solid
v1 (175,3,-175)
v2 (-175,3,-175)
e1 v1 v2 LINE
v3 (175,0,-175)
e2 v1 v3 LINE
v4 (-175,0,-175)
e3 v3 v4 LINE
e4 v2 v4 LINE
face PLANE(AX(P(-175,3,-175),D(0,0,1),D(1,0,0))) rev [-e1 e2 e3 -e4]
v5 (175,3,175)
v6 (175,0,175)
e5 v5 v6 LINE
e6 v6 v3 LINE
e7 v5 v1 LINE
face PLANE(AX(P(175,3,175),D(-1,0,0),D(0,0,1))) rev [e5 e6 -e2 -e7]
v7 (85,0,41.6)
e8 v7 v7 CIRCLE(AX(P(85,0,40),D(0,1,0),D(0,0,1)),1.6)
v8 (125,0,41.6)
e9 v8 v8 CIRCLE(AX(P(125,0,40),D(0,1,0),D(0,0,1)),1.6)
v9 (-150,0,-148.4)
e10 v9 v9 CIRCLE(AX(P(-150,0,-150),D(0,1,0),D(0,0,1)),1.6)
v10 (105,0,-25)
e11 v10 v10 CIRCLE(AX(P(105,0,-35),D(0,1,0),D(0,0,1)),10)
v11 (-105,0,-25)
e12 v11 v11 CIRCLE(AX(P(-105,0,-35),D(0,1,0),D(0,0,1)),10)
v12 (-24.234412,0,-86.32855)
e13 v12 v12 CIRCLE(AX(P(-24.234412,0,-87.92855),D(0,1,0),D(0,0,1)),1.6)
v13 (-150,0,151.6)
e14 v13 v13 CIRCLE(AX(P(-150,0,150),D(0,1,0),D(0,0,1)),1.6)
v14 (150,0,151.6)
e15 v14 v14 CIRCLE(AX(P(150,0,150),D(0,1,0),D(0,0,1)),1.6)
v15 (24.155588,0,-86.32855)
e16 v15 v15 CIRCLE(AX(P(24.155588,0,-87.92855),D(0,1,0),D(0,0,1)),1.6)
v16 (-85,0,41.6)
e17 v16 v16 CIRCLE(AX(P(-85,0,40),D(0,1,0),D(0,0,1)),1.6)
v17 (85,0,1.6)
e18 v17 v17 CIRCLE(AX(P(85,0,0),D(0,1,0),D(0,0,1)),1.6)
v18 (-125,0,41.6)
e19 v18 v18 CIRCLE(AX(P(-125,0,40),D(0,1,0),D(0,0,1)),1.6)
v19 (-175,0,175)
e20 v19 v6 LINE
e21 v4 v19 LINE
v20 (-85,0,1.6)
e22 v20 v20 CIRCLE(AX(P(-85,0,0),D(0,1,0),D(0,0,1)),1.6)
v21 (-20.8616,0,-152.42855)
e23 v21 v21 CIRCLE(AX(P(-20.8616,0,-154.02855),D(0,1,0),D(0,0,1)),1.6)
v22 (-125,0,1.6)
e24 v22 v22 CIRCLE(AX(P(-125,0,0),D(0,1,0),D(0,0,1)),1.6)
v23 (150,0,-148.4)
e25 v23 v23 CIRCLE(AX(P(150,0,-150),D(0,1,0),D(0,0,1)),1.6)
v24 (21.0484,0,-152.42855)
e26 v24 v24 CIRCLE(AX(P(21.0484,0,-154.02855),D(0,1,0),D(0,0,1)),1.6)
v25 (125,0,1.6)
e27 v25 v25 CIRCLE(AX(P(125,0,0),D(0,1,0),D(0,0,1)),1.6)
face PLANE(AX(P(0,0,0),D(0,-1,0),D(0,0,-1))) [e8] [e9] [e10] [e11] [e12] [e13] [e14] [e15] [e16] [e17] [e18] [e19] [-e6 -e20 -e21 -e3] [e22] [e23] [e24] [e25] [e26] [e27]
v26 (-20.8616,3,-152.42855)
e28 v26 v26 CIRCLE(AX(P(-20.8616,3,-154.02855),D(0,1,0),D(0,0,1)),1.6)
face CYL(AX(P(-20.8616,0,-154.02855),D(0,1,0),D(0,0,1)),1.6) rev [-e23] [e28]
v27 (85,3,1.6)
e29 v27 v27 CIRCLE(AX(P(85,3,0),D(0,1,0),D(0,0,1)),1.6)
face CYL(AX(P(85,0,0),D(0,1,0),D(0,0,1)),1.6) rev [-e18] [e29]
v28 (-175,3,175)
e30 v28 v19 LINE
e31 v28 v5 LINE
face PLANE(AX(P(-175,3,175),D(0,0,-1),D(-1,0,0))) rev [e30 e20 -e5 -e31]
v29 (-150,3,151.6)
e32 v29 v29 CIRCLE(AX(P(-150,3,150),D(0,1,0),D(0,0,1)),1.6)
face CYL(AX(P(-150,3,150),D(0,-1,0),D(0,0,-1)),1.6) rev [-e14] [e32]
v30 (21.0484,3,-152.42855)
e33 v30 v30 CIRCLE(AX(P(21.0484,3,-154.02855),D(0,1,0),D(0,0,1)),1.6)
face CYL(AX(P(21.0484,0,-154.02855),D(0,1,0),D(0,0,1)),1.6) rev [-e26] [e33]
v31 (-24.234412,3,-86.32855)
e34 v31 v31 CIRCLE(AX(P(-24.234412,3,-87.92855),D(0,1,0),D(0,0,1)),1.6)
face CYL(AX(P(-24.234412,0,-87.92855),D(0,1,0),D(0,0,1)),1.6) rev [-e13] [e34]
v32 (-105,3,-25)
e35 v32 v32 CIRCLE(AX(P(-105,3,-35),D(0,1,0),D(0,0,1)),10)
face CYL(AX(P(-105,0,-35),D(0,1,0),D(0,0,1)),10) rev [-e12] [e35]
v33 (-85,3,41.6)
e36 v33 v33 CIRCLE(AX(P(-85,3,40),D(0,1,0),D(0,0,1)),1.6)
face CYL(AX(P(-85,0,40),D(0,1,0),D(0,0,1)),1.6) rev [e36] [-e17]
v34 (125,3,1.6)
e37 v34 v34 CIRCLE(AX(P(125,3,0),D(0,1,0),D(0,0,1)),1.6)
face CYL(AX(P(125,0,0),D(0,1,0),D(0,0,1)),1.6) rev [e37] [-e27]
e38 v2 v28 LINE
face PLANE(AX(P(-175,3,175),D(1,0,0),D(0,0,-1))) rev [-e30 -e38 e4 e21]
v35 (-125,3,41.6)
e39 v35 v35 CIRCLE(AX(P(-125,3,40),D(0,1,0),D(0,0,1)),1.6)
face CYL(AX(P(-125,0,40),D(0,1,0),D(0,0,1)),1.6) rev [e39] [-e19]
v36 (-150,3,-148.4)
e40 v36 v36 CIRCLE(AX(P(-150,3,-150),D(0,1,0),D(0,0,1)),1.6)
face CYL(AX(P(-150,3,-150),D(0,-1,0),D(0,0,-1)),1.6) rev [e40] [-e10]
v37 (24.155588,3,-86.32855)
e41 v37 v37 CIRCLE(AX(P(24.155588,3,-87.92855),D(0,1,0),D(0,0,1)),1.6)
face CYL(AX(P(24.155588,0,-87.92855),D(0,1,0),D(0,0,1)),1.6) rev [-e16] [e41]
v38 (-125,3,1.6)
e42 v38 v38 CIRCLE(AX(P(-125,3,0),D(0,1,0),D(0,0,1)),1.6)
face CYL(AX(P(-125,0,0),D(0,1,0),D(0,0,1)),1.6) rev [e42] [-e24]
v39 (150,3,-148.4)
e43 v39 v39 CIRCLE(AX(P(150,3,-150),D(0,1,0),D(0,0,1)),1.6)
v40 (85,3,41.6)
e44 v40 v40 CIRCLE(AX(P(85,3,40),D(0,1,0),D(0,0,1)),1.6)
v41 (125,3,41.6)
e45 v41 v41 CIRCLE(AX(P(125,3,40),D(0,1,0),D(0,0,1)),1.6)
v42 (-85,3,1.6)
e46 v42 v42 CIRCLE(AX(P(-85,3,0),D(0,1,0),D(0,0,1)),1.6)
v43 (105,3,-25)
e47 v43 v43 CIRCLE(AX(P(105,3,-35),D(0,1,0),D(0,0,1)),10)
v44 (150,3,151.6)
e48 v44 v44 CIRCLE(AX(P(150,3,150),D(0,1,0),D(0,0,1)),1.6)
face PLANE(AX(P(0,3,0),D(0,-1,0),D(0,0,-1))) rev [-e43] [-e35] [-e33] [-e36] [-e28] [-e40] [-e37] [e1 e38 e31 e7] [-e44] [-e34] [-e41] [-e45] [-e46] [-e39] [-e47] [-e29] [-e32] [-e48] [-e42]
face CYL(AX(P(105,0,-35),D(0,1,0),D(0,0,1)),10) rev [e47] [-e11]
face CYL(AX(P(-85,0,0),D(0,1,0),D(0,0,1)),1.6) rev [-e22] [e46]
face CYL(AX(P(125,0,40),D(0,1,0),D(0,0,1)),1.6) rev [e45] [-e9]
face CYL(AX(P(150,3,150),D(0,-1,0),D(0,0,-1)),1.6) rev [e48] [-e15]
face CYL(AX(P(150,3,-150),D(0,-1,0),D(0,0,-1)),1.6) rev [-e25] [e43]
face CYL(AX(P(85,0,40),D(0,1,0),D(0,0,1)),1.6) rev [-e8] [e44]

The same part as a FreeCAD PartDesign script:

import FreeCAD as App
import Part
import Sketcher
Q = App.Units.Quantity

doc = App.newDocument("Part")
body = doc.addObject("PartDesign::Body", "Body")

# Sketch on XZ plane
sketch1 = body.newObject("Sketcher::SketchObject", "Sketch")
sketch1.AttachmentSupport = (doc.getObject("XZ_Plane"), [""])
sketch1.MapMode = "FlatFace"
sketch1.addGeometry(Part.LineSegment(App.Vector(-175, -175, 0), App.Vector(-175, 175, 0)), False)
sketch1.addGeometry(Part.LineSegment(App.Vector(-175, 175, 0), App.Vector(175, 175, 0)), False)
sketch1.addGeometry(Part.LineSegment(App.Vector(175, 175, 0), App.Vector(175, -175, 0)), False)
sketch1.addGeometry(Part.LineSegment(App.Vector(175, -175, 0), App.Vector(-175, -175, 0)), False)
sketch1.addGeometry(Part.Circle(App.Vector(-150, 150, 0), App.Vector(0, 0, 1), 1.6), False)
sketch1.addGeometry(Part.Circle(App.Vector(150, 150, 0), App.Vector(0, 0, 1), 1.6), False)
sketch1.addGeometry(Part.Circle(App.Vector(-150, -150, 0), App.Vector(0, 0, 1), 1.6), False)
sketch1.addGeometry(Part.Circle(App.Vector(150, -150, 0), App.Vector(0, 0, 1), 1.6), False)
sketch1.addConstraint(Sketcher.Constraint("Coincident", 0, 2, 1, 1))
sketch1.addConstraint(Sketcher.Constraint("Coincident", 1, 2, 2, 1))
sketch1.addConstraint(Sketcher.Constraint("Coincident", 2, 2, 3, 1))
sketch1.addConstraint(Sketcher.Constraint("Coincident", 3, 2, 0, 1))
sketch1.addConstraint(Sketcher.Constraint("Vertical", 0))
sketch1.addConstraint(Sketcher.Constraint("Horizontal", 1))
sketch1.addConstraint(Sketcher.Constraint("Vertical", 2))
sketch1.addConstraint(Sketcher.Constraint("Horizontal", 3))
sketch1.addConstraint(Sketcher.Constraint("Equal", 4, 5))
sketch1.addConstraint(Sketcher.Constraint("Equal", 5, 6))
sketch1.addConstraint(Sketcher.Constraint("Equal", 6, 7))
sketch1.addConstraint(Sketcher.Constraint("Symmetric", 5, 3, 6, 3, -1, 1))
sketch1.addConstraint(Sketcher.Constraint("Symmetric", 4, 3, 7, 3, -1, 1))
sketch1.addConstraint(Sketcher.Constraint("Symmetric", 0, 2, 2, 2, -1, 1))
sketch1.addConstraint(Sketcher.Constraint("Symmetric", 4, 3, 5, 3, -2))
sketch1.addConstraint(Sketcher.Constraint("Equal", 3, 0))
sketch1.addConstraint(Sketcher.Constraint("Diameter", 4, Q("3.2 mm")))
sketch1.addConstraint(Sketcher.Constraint("DistanceX", 1, 1, 1, 2, Q("350 mm")))
sketch1.addConstraint(Sketcher.Constraint("DistanceX", 4, 3, -1, 1, Q("150 mm")))
sketch1.addConstraint(Sketcher.Constraint("DistanceY", -1, 1, 4, 3, Q("150 mm")))
pad1 = body.newObject("PartDesign::Pad", "Pad")
pad1.Profile = sketch1
pad1.Length = 3
pad1.Reversed = True

# Sketch on XZ plane
sketch2 = body.newObject("Sketcher::SketchObject", "Sketch001")
sketch2.AttachmentSupport = (doc.getObject("XZ_Plane"), [""])
sketch2.MapMode = "FlatFace"
sketch2.AttachmentOffset = App.Placement(App.Vector(0, 0, -3), App.Rotation())
sketch2.addGeometry(Part.Circle(App.Vector(-105, -35, 0), App.Vector(0, 0, 1), 10), False)
sketch2.addGeometry(Part.Circle(App.Vector(105, -35, 0), App.Vector(0, 0, 1), 10), False)
sketch2.addGeometry(Part.Circle(App.Vector(-20.9, -154, 0), App.Vector(0, 0, 1), 1.6), False)
sketch2.addGeometry(Part.Circle(App.Vector(-24.2, -87.9, 0), App.Vector(0, 0, 1), 1.6), False)
sketch2.addGeometry(Part.Circle(App.Vector(21, -154, 0), App.Vector(0, 0, 1), 1.6), False)
sketch2.addGeometry(Part.Circle(App.Vector(24.2, -87.9, 0), App.Vector(0, 0, 1), 1.6), False)
sketch2.addGeometry(Part.Circle(App.Vector(-125, 0, 0), App.Vector(0, 0, 1), 1.6), False)
sketch2.addGeometry(Part.Circle(App.Vector(-85, 0, 0), App.Vector(0, 0, 1), 1.6), False)
sketch2.addGeometry(Part.Circle(App.Vector(-125, 40, 0), App.Vector(0, 0, 1), 1.6), False)
sketch2.addGeometry(Part.Circle(App.Vector(-85, 40, 0), App.Vector(0, 0, 1), 1.6), False)
sketch2.addGeometry(Part.Circle(App.Vector(85, 0, 0), App.Vector(0, 0, 1), 1.6), False)
sketch2.addGeometry(Part.Circle(App.Vector(125, 0, 0), App.Vector(0, 0, 1), 1.6), False)
sketch2.addGeometry(Part.Circle(App.Vector(85, 40, 0), App.Vector(0, 0, 1), 1.6), False)
sketch2.addGeometry(Part.Circle(App.Vector(125, 40, 0), App.Vector(0, 0, 1), 1.6), False)
sketch2.addConstraint(Sketcher.Constraint("Equal", 0, 1))
sketch2.addConstraint(Sketcher.Constraint("Equal", 2, 3))
sketch2.addConstraint(Sketcher.Constraint("Equal", 3, 4))
sketch2.addConstraint(Sketcher.Constraint("Equal", 4, 5))
sketch2.addConstraint(Sketcher.Constraint("Equal", 5, 6))
sketch2.addConstraint(Sketcher.Constraint("Equal", 6, 7))
sketch2.addConstraint(Sketcher.Constraint("Equal", 7, 8))
sketch2.addConstraint(Sketcher.Constraint("Equal", 8, 9))
sketch2.addConstraint(Sketcher.Constraint("Equal", 9, 10))
sketch2.addConstraint(Sketcher.Constraint("Equal", 10, 11))
sketch2.addConstraint(Sketcher.Constraint("Equal", 11, 12))
sketch2.addConstraint(Sketcher.Constraint("Equal", 12, 13))
sketch2.addConstraint(Sketcher.Constraint("Symmetric", 7, 3, 10, 3, -1, 1))
sketch2.addConstraint(Sketcher.Constraint("Symmetric", 6, 3, 11, 3, -1, 1))
sketch2.addConstraint(Sketcher.Constraint("Symmetric", 0, 3, 1, 3, -2))
sketch2.addConstraint(Sketcher.Constraint("Symmetric", 9, 3, 12, 3, -2))
sketch2.addConstraint(Sketcher.Constraint("Symmetric", 8, 3, 13, 3, -2))
sketch2.addConstraint(Sketcher.Constraint("PointOnObject", 6, 3, -1))
sketch2.addConstraint(Sketcher.Constraint("PointOnObject", 7, 3, -1))
sketch2.addConstraint(Sketcher.Constraint("Horizontal", 2, 3, 4, 3))
sketch2.addConstraint(Sketcher.Constraint("Horizontal", 3, 3, 5, 3))
sketch2.addConstraint(Sketcher.Constraint("Horizontal", 8, 3, 9, 3))
sketch2.addConstraint(Sketcher.Constraint("Vertical", 6, 3, 8, 3))
sketch2.addConstraint(Sketcher.Constraint("Vertical", 7, 3, 9, 3))
sketch2.addConstraint(Sketcher.Constraint("Diameter", 0, Q("20 mm")))
sketch2.addConstraint(Sketcher.Constraint("Diameter", 2, Q("3.2 mm")))
sketch2.addConstraint(Sketcher.Constraint("DistanceX", 0, 3, -1, 1, Q("105 mm")))
sketch2.addConstraint(Sketcher.Constraint("DistanceY", 0, 3, -1, 1, Q("35 mm")))
sketch2.addConstraint(Sketcher.Constraint("DistanceX", 6, 3, -1, 1, Q("125 mm")))
sketch2.addConstraint(Sketcher.Constraint("DistanceX", 7, 3, -1, 1, Q("85 mm")))
sketch2.addConstraint(Sketcher.Constraint("DistanceY", -1, 1, 8, 3, Q("40 mm")))
sketch2.addConstraint(Sketcher.Constraint("DistanceY", 2, 3, 3, 3, Q("66.1 mm")))
sketch2.addConstraint(Sketcher.Constraint("DistanceX", 2, 3, 4, 3, Q("41.91 mm")))
sketch2.addConstraint(Sketcher.Constraint("DistanceX", 3, 3, 5, 3, Q("48.39 mm")))
sketch2.addConstraint(Sketcher.Constraint("DistanceX", 2, 3, -1, 1, Q("20.8616 mm")))
sketch2.addConstraint(Sketcher.Constraint("DistanceY", 2, 3, -1, 1, Q("154.02855 mm")))
sketch2.addConstraint(Sketcher.Constraint("DistanceX", 3, 3, -1, 1, Q("24.234412 mm")))
pocket1 = body.newObject("PartDesign::Pocket", "Pocket")
pocket1.Profile = sketch2
pocket1.Length = 3
pocket1.Reversed = True

doc.recompute()
